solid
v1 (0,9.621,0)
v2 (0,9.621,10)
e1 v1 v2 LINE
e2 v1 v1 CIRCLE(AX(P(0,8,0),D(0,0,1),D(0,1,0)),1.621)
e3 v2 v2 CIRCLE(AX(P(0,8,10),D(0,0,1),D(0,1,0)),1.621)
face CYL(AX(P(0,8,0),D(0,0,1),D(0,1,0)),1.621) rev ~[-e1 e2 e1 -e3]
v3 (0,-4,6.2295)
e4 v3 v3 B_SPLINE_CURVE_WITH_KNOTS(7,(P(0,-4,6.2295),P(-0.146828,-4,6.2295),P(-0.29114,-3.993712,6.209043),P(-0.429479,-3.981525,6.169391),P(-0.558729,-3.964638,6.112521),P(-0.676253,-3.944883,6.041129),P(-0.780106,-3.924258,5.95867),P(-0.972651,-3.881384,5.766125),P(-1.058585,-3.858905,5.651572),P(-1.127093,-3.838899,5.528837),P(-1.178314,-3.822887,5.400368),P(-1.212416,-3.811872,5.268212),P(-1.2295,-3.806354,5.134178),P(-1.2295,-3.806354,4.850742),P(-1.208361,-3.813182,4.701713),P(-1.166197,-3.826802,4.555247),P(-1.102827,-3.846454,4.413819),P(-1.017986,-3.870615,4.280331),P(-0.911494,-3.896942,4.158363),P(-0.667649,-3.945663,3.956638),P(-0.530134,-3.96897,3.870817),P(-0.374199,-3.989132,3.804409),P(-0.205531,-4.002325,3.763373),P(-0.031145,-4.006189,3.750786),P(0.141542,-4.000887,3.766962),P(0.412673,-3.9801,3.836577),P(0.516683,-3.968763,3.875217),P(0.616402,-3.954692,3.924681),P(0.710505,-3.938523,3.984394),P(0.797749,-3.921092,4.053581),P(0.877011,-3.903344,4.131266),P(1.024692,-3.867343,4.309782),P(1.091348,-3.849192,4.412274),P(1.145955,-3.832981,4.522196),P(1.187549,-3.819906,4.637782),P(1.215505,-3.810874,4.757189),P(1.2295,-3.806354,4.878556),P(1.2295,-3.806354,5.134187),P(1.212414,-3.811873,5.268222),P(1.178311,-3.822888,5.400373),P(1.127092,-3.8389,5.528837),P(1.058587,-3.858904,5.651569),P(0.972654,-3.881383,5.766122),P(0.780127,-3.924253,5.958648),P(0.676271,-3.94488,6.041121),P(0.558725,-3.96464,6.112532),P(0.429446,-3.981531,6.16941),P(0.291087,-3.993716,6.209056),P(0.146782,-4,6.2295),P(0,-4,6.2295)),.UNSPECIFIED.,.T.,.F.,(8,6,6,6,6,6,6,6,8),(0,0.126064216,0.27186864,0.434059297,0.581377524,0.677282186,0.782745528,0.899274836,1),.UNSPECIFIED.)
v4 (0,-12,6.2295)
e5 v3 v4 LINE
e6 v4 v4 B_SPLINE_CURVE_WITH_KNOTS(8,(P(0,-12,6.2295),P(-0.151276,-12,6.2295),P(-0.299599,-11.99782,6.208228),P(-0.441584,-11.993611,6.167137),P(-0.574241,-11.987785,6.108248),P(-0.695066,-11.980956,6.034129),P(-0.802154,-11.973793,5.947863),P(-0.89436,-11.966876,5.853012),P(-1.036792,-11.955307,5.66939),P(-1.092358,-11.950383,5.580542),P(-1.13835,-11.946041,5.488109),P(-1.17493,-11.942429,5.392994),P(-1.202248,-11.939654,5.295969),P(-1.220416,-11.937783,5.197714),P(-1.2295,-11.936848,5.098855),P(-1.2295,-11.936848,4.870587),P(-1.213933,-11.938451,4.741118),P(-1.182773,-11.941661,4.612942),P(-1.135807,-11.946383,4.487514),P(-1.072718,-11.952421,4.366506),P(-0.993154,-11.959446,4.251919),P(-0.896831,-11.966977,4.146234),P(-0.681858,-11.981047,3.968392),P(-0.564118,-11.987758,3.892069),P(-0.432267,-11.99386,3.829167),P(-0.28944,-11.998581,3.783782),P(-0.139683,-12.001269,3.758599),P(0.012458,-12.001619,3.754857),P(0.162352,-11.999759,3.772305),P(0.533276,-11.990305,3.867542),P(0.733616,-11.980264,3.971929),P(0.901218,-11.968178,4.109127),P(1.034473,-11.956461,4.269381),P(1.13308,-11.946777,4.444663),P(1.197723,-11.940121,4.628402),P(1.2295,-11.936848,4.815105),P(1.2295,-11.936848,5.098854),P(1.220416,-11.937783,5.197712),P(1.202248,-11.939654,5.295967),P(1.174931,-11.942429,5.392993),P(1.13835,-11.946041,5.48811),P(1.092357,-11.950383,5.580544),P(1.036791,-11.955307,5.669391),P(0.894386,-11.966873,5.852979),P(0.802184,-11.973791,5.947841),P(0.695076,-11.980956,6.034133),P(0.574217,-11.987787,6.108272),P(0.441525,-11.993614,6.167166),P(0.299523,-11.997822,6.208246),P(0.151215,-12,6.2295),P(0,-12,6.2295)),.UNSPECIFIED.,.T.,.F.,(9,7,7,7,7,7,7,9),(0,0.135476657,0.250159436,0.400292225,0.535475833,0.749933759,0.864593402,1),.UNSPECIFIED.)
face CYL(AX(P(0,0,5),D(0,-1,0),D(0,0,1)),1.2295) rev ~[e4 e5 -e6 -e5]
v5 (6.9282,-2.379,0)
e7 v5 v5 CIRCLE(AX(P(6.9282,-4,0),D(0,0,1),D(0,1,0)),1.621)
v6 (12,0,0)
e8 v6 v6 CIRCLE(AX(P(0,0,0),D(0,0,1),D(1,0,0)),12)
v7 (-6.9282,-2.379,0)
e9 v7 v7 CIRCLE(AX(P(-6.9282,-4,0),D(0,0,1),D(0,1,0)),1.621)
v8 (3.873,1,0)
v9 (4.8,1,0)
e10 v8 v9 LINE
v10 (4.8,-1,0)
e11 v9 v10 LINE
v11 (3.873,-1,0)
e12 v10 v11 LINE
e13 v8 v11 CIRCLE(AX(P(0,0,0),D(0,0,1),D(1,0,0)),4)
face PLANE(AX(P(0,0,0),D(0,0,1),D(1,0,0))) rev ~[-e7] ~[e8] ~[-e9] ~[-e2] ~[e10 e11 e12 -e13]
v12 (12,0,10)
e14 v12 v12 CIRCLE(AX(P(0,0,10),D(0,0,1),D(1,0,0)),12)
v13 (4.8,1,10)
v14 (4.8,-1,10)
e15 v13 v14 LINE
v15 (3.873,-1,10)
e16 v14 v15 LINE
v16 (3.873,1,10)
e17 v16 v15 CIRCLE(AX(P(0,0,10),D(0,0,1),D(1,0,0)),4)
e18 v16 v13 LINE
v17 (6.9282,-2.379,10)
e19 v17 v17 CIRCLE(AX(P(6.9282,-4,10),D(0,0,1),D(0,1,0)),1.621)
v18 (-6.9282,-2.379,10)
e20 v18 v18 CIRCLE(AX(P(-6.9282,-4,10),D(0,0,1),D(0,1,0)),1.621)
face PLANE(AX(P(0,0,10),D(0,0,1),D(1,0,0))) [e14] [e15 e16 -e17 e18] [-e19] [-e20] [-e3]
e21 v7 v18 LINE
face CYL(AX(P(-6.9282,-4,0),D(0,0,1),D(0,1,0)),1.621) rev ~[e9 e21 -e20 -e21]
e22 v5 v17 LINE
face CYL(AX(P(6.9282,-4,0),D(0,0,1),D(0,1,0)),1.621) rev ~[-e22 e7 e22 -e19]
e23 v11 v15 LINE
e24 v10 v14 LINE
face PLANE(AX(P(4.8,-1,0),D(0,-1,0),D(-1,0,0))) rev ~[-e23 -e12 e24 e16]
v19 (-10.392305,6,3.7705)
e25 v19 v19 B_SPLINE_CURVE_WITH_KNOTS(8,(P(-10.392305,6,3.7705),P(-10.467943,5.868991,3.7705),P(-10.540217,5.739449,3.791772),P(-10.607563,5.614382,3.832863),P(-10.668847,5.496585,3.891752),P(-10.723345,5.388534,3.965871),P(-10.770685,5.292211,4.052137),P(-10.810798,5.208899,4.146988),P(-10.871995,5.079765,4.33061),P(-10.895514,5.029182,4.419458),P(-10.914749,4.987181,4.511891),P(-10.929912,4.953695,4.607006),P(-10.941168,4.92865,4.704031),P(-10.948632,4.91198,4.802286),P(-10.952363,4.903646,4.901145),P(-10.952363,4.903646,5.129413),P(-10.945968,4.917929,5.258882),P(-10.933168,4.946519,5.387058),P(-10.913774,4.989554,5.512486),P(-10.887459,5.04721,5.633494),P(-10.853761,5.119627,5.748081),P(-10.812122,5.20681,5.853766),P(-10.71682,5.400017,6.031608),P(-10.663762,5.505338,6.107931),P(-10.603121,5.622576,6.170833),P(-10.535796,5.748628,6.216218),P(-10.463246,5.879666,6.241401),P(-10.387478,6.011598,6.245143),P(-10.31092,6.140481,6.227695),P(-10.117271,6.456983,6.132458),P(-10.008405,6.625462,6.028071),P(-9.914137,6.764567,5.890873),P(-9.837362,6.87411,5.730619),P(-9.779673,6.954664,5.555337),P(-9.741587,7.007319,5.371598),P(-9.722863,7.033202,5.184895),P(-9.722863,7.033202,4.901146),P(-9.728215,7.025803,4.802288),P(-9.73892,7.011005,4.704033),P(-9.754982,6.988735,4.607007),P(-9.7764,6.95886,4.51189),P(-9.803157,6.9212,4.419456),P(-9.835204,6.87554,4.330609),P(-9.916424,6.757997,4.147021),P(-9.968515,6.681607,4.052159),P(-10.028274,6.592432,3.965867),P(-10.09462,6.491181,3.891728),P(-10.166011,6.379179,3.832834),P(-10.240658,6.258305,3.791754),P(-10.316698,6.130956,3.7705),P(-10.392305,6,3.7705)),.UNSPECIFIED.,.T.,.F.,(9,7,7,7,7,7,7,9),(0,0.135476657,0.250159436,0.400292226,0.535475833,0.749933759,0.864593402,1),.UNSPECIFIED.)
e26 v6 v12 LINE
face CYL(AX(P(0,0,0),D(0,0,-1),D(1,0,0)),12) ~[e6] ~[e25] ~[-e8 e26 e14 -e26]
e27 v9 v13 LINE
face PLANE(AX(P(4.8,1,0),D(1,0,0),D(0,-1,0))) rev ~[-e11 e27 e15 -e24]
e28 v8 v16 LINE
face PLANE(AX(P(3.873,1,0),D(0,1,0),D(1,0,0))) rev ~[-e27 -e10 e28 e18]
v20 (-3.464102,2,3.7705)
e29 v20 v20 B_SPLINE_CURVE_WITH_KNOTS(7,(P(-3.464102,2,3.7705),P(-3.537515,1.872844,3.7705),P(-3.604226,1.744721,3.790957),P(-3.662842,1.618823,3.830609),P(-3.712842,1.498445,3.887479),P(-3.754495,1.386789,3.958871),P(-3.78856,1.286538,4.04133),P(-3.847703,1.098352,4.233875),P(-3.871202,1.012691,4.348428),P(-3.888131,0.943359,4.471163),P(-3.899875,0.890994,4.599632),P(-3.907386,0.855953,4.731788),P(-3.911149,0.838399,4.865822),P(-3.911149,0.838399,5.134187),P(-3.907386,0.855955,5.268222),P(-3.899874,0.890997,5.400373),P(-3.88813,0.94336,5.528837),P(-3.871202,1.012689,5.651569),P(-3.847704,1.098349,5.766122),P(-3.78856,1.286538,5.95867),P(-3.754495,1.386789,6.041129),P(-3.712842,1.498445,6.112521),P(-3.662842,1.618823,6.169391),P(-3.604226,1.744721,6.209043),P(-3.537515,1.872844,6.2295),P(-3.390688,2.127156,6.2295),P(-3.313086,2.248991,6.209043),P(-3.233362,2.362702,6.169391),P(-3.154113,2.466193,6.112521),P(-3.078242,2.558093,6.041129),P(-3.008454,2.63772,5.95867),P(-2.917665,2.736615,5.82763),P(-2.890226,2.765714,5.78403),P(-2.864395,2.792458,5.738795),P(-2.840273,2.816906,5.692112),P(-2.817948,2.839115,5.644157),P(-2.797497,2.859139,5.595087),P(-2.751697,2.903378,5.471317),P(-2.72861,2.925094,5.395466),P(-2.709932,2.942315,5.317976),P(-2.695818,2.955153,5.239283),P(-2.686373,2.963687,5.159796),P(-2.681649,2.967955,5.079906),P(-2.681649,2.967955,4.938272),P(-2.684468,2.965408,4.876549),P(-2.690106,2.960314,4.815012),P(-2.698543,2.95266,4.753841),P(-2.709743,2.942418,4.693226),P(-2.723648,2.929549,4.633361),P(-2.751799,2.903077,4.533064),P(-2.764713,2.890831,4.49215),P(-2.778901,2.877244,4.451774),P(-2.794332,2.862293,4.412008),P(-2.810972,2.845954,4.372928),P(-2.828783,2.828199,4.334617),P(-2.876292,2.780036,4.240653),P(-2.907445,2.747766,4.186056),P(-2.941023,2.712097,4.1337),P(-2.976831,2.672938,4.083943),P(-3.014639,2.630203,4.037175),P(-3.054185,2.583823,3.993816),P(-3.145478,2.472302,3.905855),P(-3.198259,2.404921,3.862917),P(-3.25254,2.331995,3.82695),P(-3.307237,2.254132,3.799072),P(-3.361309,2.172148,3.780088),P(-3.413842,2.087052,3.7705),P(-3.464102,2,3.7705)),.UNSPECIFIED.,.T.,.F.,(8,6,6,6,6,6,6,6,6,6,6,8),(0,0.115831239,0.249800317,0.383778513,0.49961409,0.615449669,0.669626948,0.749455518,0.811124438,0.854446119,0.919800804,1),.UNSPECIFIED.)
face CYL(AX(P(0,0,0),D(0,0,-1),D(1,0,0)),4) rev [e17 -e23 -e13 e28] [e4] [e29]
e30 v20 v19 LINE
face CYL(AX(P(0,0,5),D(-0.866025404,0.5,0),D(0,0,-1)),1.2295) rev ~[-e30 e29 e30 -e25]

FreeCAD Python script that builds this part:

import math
import FreeCAD as App
import Part
import Sketcher

V = App.Vector

doc = App.newDocument("Part")
params = doc.addObject("Spreadsheet::Sheet", "Params")
for row, (alias, value) in enumerate([
    ("sketch1_diameter", "24 mm"),
    ("sketch1_radius", "4 mm"),
    ("sketch1_height", "2 mm"),
    ("pad1_length", "10 mm"),
    ("hole_diameter", "2.459 mm"),
    ("hole2_diameter", "2.459 mm"),
    ("hole3_diameter", "3.242 mm"),
], start=1):
    params.set(f"A{row}", alias)
    params.set(f"B{row}", "=" + value)
    params.setAlias(f"B{row}", alias)

body = doc.addObject("PartDesign::Body", "Body")

# Sketch on XY plane
sketch1 = body.newObject("Sketcher::SketchObject", "Sketch")
sketch1.AttachmentSupport = (doc.getObject("XY_Plane"), [""])
sketch1.MapMode = "FlatFace"
sketch1.addGeometry(Part.Circle(V(0, 0, 0), V(0, 0, 1), 12), False)
sketch1.addGeometry(Part.ArcOfCircle(Part.Circle(V(0, 0, 0), V(0, 0, 1), 4), math.radians(14), math.radians(346)), False)
sketch1.addGeometry(Part.LineSegment(V(3.9, 1, 0), V(4.8, 1, 0)), False)
sketch1.addGeometry(Part.LineSegment(V(4.8, 1, 0), V(4.8, -1, 0)), False)
sketch1.addGeometry(Part.LineSegment(V(4.8, -1, 0), V(3.9, -1, 0)), False)
sketch1.addConstraint(Sketcher.Constraint("Coincident", 1, 1, 2, 1))
sketch1.addConstraint(Sketcher.Constraint("Coincident", 2, 2, 3, 1))
sketch1.addConstraint(Sketcher.Constraint("Coincident", 3, 2, 4, 1))
sketch1.addConstraint(Sketcher.Constraint("Coincident", 4, 2, 1, 2))
sketch1.addConstraint(Sketcher.Constraint("Horizontal", 2))
sketch1.addConstraint(Sketcher.Constraint("Vertical", 3))
sketch1.addConstraint(Sketcher.Constraint("Horizontal", 4))
sketch1.addConstraint(Sketcher.Constraint("Coincident", 0, 3, -1, 1))
sketch1.addConstraint(Sketcher.Constraint("Coincident", 1, 3, -1, 1))
sketch1.addConstraint(Sketcher.Constraint("Vertical", 1, 1, 4, 2))
sketch1.addConstraint(Sketcher.Constraint("Diameter", 0, 24.0))
sketch1.addConstraint(Sketcher.Constraint("Radius", 1, 4.0))
sketch1.addConstraint(Sketcher.Constraint("DistanceY", 3, 2, 3, 1, 2.0))
sketch1.addConstraint(Sketcher.Constraint("DistanceX", -1, 1, 2, 2, 4.8))
sketch1.setExpression("Constraints[10]", "Params.sketch1_diameter")
sketch1.setExpression("Constraints[11]", "Params.sketch1_radius")
sketch1.setExpression("Constraints[12]", "Params.sketch1_height")
pad1 = body.newObject("PartDesign::Pad", "Pad")
pad1.Profile = sketch1
pad1.setExpression("Length", "Params.pad1_length")

# Sketch on XZ plane
sketch2 = body.newObject("Sketcher::SketchObject", "Sketch001")
sketch2.AttachmentSupport = (doc.getObject("XZ_Plane"), [""])
sketch2.MapMode = "FlatFace"
sketch2.addGeometry(Part.Circle(V(0, 5, 0), V(0, 0, 1), 1.2), False)
sketch2.addConstraint(Sketcher.Constraint("PointOnObject", 0, 3, -2))
sketch2.addConstraint(Sketcher.Constraint("Diameter", 0, 2.459))
sketch2.addConstraint(Sketcher.Constraint("DistanceY", -1, 1, 0, 3, 5.0))
doc.recompute()
hole = body.newObject("PartDesign::Hole", "Hole")
hole.Profile = sketch2
hole.ThreadType = "None"
hole.setExpression("Diameter", "Params.hole_diameter")
hole.DepthType = "ThroughAll"
hole.Reversed = True

# Sketch on an angled plane
sketch3 = body.newObject("Sketcher::SketchObject", "Sketch002")
sketch3.Placement = App.Placement(V(0, 0, 0), App.Rotation(V(0.5, 0.866025404, 0), V(0, 0, 1), V(0.866025404, -0.5, 0), "ZXY"))
sketch3.addGeometry(Part.Circle(V(0, 5, 0), V(0, 0, 1), 1.2), False)
sketch3.addConstraint(Sketcher.Constraint("PointOnObject", 0, 3, -2))
sketch3.addConstraint(Sketcher.Constraint("Diameter", 0, 2.459))
sketch3.addConstraint(Sketcher.Constraint("DistanceY", -1, 1, 0, 3, 5.0))
doc.recompute()
hole2 = body.newObject("PartDesign::Hole", "Hole001")
hole2.Profile = sketch3
hole2.ThreadType = "None"
hole2.setExpression("Diameter", "Params.hole2_diameter")
hole2.DepthType = "ThroughAll"

# Sketch on XY plane
sketch4 = body.newObject("Sketcher::SketchObject", "Sketch003")
sketch4.AttachmentSupport = (doc.getObject("XY_Plane"), [""])
sketch4.MapMode = "FlatFace"
sketch4.addGeometry(Part.Circle(V(0, 8, 0), V(0, 0, 1), 1.6), False)
sketch4.addGeometry(Part.Circle(V(-6.9, -4, 0), V(0, 0, 1), 1.6), False)
sketch4.addGeometry(Part.Circle(V(6.9, -4, 0), V(0, 0, 1), 1.6), False)
sketch4.addConstraint(Sketcher.Constraint("Equal", 0, 1))
sketch4.addConstraint(Sketcher.Constraint("Equal", 1, 2))
sketch4.addConstraint(Sketcher.Constraint("Symmetric", 1, 3, 2, 3, -2))
sketch4.addConstraint(Sketcher.Constraint("PointOnObject", 0, 3, -2))
sketch4.addConstraint(Sketcher.Constraint("Diameter", 0, 3.242))
sketch4.addConstraint(Sketcher.Constraint("DistanceY", -1, 1, 0, 3, 8.0))
sketch4.addConstraint(Sketcher.Constraint("DistanceY", 1, 3, -1, 1, 4.0))
sketch4.addConstraint(Sketcher.Constraint("DistanceX", 1, 3, -1, 1, 6.9282))
doc.recompute()
hole3 = body.newObject("PartDesign::Hole", "Hole002")
hole3.Profile = sketch4
hole3.ThreadType = "None"
hole3.setExpression("Diameter", "Params.hole3_diameter")
hole3.DepthType = "ThroughAll"
hole3.Reversed = True

doc.recompute()
